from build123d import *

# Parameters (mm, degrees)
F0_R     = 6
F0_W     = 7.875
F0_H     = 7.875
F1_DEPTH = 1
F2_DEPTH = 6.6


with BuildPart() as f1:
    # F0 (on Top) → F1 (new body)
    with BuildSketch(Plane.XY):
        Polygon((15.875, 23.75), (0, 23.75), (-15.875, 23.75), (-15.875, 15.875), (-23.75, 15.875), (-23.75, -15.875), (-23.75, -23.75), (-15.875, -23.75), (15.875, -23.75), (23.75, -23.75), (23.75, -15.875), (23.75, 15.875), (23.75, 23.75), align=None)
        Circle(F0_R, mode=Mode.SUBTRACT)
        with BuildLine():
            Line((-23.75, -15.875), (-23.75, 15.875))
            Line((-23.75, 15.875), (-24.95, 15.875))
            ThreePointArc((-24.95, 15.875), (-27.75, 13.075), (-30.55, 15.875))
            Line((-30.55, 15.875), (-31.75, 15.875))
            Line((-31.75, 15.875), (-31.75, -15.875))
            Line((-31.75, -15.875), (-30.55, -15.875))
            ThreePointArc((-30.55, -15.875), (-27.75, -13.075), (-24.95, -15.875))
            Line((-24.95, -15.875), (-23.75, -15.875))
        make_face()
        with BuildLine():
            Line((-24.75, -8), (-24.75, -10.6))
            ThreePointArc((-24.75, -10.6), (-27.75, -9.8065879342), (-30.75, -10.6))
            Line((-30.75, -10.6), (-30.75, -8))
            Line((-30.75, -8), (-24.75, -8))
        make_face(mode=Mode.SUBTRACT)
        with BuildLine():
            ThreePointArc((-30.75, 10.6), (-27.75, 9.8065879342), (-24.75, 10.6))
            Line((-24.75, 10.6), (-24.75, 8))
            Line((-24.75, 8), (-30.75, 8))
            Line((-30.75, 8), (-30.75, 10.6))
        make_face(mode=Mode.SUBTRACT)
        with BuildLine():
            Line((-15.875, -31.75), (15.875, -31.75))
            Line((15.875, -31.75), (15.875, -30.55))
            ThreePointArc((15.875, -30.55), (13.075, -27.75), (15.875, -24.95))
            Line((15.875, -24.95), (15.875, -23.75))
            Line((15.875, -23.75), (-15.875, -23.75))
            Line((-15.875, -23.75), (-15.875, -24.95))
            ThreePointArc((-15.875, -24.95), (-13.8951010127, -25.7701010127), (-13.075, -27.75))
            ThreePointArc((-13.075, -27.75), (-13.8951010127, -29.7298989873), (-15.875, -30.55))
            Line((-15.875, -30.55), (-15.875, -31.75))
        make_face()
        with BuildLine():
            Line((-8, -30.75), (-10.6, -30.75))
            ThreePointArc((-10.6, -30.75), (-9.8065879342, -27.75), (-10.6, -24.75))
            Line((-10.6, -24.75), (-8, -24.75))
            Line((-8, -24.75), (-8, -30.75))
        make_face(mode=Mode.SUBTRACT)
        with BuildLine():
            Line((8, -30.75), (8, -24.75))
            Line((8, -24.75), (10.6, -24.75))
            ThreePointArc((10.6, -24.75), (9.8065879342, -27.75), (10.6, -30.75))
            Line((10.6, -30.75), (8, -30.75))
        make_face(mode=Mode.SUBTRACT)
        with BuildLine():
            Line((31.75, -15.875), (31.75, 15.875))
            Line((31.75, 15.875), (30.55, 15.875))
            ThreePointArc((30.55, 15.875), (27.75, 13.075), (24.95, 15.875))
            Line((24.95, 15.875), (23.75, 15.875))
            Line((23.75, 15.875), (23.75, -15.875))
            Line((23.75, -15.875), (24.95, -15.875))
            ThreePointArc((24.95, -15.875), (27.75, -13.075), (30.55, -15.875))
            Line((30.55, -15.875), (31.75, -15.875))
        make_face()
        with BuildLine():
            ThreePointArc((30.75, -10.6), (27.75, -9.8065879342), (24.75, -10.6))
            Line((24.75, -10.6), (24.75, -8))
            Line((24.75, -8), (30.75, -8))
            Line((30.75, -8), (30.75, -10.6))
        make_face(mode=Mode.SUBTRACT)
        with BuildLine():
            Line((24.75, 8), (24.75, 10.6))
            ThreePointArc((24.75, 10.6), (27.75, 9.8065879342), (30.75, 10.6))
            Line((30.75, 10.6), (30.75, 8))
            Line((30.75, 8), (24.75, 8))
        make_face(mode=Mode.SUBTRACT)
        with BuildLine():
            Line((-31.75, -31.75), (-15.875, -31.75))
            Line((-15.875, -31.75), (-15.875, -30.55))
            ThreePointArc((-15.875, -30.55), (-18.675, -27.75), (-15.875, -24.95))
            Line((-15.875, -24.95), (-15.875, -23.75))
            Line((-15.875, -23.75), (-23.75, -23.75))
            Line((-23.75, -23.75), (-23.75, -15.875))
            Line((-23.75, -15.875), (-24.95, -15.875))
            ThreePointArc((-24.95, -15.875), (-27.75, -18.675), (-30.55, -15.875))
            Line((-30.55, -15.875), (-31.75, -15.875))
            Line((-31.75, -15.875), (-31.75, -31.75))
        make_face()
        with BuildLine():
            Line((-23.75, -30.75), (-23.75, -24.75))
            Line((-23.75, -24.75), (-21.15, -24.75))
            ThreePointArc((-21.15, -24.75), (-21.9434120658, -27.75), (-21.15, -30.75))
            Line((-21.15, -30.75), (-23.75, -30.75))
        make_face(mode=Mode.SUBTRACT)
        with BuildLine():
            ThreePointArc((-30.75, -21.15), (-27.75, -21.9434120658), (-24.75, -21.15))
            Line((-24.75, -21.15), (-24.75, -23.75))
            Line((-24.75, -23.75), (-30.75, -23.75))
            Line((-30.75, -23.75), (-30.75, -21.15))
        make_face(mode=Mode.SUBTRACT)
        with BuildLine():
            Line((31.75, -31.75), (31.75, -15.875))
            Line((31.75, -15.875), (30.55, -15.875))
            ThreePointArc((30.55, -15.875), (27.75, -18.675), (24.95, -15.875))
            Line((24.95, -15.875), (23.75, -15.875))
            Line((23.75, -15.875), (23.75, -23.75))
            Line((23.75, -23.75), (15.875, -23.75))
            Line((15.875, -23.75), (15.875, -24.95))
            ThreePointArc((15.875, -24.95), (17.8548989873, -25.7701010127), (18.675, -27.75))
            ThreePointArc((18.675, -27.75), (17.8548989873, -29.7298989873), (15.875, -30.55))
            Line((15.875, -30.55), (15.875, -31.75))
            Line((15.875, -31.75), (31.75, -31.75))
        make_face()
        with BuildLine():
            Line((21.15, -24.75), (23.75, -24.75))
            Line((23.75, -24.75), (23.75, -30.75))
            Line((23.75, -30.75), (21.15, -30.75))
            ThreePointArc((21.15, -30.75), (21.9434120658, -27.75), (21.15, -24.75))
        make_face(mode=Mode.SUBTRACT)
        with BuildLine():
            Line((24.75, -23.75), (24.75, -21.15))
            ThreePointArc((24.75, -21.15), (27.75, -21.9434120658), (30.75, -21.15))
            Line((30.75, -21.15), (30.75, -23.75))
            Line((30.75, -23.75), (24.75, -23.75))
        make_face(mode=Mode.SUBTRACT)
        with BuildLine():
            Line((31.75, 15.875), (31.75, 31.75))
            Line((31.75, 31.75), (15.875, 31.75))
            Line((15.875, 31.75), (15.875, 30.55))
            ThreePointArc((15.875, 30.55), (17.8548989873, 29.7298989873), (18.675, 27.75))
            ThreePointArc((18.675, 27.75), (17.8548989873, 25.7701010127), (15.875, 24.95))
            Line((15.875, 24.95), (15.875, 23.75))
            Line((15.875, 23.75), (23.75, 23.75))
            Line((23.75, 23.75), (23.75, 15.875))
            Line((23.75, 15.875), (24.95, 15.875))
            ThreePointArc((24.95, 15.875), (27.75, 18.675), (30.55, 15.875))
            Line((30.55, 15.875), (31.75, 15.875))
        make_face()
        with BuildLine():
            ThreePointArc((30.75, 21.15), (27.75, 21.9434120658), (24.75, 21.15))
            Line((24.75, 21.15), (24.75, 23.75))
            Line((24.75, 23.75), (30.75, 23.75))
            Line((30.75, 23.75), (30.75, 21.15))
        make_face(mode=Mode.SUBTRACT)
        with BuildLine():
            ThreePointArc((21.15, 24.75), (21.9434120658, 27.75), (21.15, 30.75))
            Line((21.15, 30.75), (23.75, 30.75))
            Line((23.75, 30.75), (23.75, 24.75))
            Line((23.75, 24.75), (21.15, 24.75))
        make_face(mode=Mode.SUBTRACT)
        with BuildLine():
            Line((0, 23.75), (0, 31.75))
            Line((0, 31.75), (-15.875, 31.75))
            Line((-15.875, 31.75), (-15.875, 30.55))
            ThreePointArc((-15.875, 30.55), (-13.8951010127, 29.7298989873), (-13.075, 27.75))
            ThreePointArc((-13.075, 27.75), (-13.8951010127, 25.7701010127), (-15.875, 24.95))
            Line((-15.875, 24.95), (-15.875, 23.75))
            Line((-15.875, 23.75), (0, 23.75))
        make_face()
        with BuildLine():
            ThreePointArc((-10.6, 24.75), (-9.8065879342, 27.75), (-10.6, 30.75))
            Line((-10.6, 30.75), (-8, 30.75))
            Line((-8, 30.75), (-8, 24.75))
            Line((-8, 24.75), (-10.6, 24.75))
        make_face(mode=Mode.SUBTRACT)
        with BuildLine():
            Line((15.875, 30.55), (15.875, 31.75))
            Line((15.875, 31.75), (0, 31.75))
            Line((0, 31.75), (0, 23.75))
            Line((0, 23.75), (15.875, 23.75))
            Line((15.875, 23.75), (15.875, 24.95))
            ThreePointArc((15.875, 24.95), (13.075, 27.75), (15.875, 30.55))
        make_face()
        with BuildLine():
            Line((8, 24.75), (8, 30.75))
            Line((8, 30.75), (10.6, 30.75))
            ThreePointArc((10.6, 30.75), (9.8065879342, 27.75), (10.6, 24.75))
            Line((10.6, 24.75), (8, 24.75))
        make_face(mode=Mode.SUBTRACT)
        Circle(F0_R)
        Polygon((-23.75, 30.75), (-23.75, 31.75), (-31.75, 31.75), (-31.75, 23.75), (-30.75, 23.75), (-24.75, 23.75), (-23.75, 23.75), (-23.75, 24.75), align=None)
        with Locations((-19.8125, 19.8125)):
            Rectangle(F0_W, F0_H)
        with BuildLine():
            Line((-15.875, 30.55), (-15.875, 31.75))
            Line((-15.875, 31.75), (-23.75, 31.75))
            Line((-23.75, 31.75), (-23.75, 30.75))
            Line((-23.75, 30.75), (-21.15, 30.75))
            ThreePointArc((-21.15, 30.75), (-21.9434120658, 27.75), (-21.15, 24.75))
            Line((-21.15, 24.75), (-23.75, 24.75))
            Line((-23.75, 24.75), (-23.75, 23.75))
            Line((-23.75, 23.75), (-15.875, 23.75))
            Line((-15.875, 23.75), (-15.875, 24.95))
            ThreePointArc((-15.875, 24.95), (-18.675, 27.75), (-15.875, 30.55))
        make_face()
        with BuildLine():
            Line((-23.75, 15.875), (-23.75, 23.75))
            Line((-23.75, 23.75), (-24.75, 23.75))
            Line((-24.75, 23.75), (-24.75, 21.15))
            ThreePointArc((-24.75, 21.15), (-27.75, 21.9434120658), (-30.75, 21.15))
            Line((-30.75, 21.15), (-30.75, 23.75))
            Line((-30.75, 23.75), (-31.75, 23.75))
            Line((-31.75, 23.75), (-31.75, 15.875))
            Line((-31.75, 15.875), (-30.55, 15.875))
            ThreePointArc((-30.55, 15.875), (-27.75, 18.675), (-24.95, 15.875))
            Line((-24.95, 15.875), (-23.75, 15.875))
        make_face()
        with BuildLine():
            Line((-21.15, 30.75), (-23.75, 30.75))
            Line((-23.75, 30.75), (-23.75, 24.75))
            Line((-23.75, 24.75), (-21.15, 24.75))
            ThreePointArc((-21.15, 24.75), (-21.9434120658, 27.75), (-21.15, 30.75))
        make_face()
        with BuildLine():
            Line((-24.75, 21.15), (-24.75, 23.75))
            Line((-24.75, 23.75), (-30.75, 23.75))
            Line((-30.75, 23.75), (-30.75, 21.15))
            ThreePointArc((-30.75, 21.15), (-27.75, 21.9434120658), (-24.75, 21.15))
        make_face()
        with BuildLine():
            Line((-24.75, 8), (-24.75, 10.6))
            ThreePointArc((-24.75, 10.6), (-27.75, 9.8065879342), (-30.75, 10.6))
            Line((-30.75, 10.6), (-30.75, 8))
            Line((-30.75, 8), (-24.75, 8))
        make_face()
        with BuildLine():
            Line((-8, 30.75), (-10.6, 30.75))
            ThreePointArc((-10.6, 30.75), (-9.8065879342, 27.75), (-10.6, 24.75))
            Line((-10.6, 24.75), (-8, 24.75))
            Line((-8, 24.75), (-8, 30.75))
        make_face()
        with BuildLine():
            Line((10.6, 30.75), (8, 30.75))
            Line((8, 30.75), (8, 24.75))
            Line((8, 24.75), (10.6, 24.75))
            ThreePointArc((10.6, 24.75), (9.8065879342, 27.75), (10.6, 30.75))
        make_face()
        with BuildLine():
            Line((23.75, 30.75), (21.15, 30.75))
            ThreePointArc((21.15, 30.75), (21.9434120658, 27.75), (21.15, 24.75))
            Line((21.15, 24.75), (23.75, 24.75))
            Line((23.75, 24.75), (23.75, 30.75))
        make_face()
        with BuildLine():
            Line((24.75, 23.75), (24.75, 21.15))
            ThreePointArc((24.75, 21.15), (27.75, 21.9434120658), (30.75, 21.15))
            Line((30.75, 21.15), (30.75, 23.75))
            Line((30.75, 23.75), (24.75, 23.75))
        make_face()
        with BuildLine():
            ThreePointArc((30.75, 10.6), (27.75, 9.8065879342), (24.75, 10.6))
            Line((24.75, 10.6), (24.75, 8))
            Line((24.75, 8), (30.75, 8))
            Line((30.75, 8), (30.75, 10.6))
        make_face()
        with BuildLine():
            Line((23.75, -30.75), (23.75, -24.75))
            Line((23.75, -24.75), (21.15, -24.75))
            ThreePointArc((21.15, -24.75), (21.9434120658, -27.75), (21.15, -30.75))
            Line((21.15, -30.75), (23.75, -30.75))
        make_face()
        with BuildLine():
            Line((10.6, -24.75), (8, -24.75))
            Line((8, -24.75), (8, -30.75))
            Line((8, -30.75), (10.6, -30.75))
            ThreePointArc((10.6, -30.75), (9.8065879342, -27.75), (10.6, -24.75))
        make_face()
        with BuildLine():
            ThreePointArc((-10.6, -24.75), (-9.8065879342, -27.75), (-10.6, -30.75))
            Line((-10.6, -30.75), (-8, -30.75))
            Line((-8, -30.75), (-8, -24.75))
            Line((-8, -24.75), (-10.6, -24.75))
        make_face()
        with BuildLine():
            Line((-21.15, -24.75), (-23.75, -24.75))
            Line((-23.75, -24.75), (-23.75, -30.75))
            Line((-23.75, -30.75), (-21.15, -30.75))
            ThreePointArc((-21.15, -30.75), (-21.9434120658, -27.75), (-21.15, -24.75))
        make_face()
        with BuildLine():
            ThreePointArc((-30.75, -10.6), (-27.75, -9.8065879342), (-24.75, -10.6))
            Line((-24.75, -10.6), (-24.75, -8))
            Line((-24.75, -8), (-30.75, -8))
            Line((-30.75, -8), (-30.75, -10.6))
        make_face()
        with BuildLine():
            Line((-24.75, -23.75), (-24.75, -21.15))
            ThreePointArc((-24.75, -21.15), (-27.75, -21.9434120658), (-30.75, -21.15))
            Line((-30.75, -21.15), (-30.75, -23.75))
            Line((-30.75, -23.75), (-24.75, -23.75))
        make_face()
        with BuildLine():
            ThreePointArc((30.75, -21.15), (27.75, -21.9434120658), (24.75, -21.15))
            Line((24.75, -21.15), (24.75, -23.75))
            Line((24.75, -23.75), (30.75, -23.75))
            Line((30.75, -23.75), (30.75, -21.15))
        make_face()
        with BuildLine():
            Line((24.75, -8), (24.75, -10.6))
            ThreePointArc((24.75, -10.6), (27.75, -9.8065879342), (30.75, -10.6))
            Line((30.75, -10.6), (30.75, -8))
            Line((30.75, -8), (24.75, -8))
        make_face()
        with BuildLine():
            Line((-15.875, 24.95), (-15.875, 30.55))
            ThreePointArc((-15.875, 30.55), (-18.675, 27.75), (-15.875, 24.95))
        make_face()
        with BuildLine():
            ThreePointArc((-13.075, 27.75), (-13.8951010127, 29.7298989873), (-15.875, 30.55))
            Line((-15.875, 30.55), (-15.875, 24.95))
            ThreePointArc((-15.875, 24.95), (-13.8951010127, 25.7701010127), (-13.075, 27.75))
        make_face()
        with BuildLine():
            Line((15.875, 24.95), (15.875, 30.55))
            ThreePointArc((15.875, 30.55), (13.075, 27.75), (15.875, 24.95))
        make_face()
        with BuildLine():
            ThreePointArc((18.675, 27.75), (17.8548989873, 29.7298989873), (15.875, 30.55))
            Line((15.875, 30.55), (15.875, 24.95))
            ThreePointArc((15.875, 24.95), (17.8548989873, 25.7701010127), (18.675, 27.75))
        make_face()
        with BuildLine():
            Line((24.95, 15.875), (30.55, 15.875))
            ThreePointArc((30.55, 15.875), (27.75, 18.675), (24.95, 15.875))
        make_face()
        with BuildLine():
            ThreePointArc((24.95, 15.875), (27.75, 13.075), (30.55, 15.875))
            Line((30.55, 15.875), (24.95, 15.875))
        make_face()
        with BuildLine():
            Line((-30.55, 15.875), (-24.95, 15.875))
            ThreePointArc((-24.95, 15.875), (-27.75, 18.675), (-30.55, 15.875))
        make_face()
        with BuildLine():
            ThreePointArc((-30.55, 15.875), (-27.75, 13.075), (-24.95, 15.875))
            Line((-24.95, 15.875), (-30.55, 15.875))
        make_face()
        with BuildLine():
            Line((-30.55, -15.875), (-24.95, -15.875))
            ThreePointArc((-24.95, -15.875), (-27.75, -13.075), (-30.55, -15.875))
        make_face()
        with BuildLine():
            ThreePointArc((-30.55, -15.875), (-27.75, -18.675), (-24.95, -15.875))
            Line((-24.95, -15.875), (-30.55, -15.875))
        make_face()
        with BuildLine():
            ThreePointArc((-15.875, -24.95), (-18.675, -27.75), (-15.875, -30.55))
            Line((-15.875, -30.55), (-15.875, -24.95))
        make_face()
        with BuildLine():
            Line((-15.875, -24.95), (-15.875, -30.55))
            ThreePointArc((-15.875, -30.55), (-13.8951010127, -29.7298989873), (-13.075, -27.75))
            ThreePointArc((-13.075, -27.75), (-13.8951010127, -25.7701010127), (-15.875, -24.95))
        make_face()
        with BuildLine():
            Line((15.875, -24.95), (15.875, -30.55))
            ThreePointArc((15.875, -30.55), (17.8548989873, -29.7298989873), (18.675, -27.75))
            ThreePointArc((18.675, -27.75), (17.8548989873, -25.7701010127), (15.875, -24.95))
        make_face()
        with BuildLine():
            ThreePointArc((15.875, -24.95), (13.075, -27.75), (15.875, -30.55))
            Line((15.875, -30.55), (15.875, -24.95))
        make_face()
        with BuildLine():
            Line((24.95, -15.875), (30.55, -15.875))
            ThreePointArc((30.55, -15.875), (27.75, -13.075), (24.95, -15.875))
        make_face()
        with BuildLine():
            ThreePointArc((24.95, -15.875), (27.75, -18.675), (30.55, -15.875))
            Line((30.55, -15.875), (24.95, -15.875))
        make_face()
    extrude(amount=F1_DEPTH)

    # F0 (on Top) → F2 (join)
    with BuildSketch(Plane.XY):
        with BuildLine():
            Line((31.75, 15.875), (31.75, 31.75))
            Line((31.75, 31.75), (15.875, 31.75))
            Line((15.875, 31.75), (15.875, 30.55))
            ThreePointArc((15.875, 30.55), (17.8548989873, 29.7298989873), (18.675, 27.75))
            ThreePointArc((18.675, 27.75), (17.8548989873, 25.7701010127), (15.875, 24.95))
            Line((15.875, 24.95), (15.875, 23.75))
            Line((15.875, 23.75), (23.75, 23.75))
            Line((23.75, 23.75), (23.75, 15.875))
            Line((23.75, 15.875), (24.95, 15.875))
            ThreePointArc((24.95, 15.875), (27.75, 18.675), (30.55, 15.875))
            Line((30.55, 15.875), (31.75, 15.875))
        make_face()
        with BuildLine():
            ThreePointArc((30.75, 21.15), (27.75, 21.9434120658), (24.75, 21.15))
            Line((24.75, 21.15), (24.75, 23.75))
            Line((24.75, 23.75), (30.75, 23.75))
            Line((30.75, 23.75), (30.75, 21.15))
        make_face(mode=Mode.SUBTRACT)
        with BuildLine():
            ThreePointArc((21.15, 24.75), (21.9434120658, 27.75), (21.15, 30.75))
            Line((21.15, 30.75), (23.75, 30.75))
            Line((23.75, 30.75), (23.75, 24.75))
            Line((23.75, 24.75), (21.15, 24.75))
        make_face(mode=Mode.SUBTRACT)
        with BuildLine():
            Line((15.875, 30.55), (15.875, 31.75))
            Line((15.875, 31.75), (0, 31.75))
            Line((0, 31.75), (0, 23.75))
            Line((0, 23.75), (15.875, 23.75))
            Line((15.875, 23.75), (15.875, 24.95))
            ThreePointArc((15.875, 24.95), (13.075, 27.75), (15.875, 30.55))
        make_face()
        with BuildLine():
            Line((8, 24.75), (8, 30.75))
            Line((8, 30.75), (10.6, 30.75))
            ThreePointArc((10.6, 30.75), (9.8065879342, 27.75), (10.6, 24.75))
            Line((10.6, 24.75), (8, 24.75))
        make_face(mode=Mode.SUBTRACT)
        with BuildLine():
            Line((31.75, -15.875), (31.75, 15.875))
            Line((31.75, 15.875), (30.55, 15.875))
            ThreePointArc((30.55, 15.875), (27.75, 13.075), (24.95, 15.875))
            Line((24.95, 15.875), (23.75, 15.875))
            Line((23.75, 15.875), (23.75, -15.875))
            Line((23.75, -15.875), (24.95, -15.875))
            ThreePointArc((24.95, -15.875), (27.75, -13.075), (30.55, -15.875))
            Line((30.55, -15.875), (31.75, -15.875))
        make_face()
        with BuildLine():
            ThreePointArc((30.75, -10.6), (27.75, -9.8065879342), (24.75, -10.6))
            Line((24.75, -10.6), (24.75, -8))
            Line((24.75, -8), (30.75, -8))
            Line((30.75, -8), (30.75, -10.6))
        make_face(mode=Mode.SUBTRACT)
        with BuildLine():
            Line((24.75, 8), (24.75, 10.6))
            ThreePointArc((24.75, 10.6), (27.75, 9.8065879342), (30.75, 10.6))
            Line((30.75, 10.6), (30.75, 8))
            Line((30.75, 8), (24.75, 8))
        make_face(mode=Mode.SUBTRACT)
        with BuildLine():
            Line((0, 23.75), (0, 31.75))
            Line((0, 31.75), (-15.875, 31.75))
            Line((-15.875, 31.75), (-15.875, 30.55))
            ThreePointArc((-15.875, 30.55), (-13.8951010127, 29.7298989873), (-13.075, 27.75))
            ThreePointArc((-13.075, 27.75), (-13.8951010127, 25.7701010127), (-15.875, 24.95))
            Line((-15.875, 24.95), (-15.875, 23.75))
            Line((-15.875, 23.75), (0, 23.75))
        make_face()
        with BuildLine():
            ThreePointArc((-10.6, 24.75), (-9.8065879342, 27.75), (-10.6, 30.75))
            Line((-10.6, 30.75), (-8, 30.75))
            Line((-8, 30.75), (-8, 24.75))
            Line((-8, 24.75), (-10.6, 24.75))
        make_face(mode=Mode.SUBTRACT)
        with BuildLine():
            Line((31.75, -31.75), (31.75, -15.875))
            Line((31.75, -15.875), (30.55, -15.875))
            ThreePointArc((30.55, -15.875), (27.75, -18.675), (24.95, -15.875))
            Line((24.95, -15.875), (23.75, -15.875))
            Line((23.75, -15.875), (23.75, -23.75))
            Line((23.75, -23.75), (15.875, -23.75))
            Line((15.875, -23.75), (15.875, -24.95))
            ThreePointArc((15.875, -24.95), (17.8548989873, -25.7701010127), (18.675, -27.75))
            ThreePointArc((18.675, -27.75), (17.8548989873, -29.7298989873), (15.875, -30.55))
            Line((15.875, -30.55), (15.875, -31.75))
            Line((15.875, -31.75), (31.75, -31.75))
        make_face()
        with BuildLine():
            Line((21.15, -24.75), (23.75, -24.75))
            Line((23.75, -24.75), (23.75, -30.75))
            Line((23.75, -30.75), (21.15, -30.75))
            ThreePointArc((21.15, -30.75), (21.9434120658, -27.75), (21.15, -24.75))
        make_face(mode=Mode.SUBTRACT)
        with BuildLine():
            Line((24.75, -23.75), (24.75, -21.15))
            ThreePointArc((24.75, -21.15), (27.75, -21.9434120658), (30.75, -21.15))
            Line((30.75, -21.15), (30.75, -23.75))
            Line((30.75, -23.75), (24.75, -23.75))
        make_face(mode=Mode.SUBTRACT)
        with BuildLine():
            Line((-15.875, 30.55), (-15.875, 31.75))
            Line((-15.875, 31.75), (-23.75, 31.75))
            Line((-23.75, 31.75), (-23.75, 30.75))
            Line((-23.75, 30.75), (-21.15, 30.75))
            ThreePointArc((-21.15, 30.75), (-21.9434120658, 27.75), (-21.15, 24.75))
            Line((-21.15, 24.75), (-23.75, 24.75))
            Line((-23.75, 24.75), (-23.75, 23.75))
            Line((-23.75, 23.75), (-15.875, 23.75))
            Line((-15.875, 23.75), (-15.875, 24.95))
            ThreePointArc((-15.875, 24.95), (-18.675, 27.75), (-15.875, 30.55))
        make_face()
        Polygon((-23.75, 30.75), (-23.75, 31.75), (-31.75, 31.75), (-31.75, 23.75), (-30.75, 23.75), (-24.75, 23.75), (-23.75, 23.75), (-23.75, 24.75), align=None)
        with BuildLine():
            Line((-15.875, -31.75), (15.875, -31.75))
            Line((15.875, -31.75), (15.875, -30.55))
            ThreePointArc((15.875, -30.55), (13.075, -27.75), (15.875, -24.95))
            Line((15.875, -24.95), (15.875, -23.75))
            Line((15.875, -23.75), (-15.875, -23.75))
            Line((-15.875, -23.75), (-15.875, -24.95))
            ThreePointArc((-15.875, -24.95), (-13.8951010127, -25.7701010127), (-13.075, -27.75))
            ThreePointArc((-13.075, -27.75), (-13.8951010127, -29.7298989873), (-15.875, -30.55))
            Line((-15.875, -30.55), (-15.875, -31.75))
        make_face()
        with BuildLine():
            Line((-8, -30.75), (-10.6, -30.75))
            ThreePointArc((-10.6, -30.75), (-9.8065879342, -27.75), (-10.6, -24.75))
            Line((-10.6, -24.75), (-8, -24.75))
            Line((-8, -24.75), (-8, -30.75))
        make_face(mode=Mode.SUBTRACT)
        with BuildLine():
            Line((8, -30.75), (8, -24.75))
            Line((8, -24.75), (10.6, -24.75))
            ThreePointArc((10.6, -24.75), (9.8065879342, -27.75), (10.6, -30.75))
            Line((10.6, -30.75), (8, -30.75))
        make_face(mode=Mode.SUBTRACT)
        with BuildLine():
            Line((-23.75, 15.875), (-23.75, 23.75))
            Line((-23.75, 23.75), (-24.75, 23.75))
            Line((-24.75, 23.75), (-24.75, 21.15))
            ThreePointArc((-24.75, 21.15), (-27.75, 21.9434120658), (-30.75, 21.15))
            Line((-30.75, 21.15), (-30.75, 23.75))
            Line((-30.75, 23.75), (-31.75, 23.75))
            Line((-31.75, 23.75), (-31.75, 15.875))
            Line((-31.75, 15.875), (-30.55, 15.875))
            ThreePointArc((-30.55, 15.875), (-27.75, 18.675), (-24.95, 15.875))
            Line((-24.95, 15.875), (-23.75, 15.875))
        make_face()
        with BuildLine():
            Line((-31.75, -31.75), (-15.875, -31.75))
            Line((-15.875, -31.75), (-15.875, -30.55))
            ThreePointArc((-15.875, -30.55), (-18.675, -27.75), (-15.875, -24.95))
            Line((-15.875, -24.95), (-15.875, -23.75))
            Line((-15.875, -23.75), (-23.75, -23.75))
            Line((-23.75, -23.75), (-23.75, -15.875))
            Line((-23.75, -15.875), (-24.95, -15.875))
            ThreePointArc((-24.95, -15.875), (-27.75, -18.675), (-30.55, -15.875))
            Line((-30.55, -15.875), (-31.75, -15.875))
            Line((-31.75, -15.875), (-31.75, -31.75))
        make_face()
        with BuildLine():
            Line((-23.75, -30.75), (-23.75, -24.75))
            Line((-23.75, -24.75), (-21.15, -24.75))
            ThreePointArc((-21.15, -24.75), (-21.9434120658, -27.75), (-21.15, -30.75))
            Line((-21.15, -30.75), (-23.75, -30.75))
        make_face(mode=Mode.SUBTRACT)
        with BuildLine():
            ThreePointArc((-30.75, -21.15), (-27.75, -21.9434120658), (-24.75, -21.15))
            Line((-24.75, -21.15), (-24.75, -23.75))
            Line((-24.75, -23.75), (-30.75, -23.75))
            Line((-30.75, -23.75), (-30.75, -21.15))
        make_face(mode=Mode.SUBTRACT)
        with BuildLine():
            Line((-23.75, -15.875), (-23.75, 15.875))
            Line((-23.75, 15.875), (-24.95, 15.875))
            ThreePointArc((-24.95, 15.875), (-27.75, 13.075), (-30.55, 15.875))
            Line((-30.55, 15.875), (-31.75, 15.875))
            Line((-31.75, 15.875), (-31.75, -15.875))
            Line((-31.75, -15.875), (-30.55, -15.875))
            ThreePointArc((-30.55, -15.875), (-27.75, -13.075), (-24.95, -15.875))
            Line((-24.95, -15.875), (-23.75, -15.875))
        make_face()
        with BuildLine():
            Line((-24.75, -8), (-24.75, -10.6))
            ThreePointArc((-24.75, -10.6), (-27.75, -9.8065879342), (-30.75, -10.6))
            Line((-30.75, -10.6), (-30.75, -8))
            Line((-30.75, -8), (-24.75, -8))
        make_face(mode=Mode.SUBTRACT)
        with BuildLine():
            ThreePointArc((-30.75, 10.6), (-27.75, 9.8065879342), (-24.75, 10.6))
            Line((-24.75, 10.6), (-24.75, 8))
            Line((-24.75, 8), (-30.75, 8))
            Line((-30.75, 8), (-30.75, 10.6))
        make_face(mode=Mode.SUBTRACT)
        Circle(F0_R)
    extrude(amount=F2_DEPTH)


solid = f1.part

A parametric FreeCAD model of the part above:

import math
import FreeCAD as App
import Part
import Sketcher

V = App.Vector
Q = App.Units.Quantity

doc = App.newDocument("Part")
params = doc.addObject("Spreadsheet::Sheet", "Params")
for row, (alias, value) in enumerate([
    ("sketch1_width", "63.5 mm"),
    ("pad1_length", "1 mm"),
    ("sketch2_diameter", "12 mm"),
    ("sketch2_diameter2", "5.6 mm"),
    ("sketch2_width", "6 mm"),
    ("sketch2_width2", "63.5 mm"),
    ("sketch2_width3", "2.6 mm"),
    ("pad2_length", "6.6 mm"),
], start=1):
    params.set(f"A{row}", alias)
    params.set(f"B{row}", "=" + value)
    params.setAlias(f"B{row}", alias)

body = doc.addObject("PartDesign::Body", "Body")

# Sketch on XY plane
sketch1 = body.newObject("Sketcher::SketchObject", "Sketch")
sketch1.AttachmentSupport = (doc.getObject("XY_Plane"), [""])
sketch1.MapMode = "FlatFace"
sketch1.addGeometry([
    Part.LineSegment(V(-32, -32, 0), V(32, -32, 0)),
    Part.LineSegment(V(32, -32, 0), V(32, 32, 0)),
    Part.LineSegment(V(32, 32, 0), V(-32, 32, 0)),
    Part.LineSegment(V(-32, 32, 0), V(-32, -32, 0)),
], False)
sketch1.addConstraint([
    Sketcher.Constraint("Coincident", 0, 2, 1, 1),
    Sketcher.Constraint("Coincident", 1, 2, 2, 1),
    Sketcher.Constraint("Coincident", 2, 2, 3, 1),
    Sketcher.Constraint("Coincident", 3, 2, 0, 1),
    Sketcher.Constraint("Horizontal", 0),
    Sketcher.Constraint("Vertical", 1),
    Sketcher.Constraint("Horizontal", 2),
    Sketcher.Constraint("Vertical", 3),
    Sketcher.Constraint("Symmetric", 0, 2, 2, 2, -1, 1),
    Sketcher.Constraint("Equal", 2, 1),
    Sketcher.Constraint("DistanceX", 0, 1, 0, 2, Q("63.5 mm")),
])
sketch1.setExpression("Constraints[10]", "Params.sketch1_width")
pad1 = body.newObject("PartDesign::Pad", "Pad")
pad1.Profile = sketch1
pad1.setExpression("Length", "Params.pad1_length")

# Sketch on XY plane
sketch2 = body.newObject("Sketcher::SketchObject", "Sketch001")
sketch2.AttachmentSupport = (doc.getObject("XY_Plane"), [""])
sketch2.MapMode = "FlatFace"
sketch2.addGeometry([
    Part.LineSegment(V(31.8, 31.8, 0), V(-31.8, 31.8, 0)),  # 0
    Part.LineSegment(V(-31.8, 31.8, 0), V(-31.8, -31.8, 0)),  # 1
    Part.LineSegment(V(-31.8, -31.8, 0), V(31.8, -31.8, 0)),  # 2
    Part.LineSegment(V(31.8, -31.8, 0), V(31.8, 31.8, 0)),  # 3
    Part.LineSegment(V(-21.1, -30.8, 0), V(-23.8, -30.8, 0)),  # 4
    Part.LineSegment(V(-23.8, -30.8, 0), V(-23.8, -24.8, 0)),  # 5
    Part.LineSegment(V(-23.8, -24.8, 0), V(-21.1, -24.8, 0)),  # 6
    Part.ArcOfCircle(Part.Circle(V(-15.9, -27.8, 0), V(0, 0, 1), 6.1), math.radians(150), math.radians(210)),  # 7
    Part.ArcOfCircle(Part.Circle(V(-15.9, -27.8, 0), V(0, 0, 1), 2.8), math.radians(0), math.radians(90)),  # 8
    Part.ArcOfCircle(Part.Circle(V(-15.9, -27.8, 0), V(0, 0, 1), 2.8), math.radians(-90), math.radians(0)),  # 9
    Part.ArcOfCircle(Part.Circle(V(-15.9, -27.8, 0), V(0, 0, 1), 2.8), math.radians(90), math.radians(270)),  # 10
    Part.LineSegment(V(-30.8, -23.8, 0), V(-30.8, -21.1, 0)),  # 11
    Part.ArcOfCircle(Part.Circle(V(-27.8, -15.9, 0), V(0, 0, 1), 6.1), math.radians(-120), math.radians(-60)),  # 12
    Part.LineSegment(V(-24.8, -21.1, 0), V(-24.8, -23.8, 0)),  # 13
    Part.LineSegment(V(-24.8, -23.8, 0), V(-30.8, -23.8, 0)),  # 14
    Part.Circle(V(-27.8, -15.9, 0), V(0, 0, 1), 2.8),  # 15
    Part.LineSegment(V(-8, -24.8, 0), V(-8, -30.8, 0)),  # 16
    Part.LineSegment(V(-8, -30.8, 0), V(-10.6, -30.8, 0)),  # 17
    Part.ArcOfCircle(Part.Circle(V(-15.9, -27.8, 0), V(0, 0, 1), 6.1), math.radians(-30), math.radians(30)),  # 18
    Part.LineSegment(V(-10.6, -24.8, 0), V(-8, -24.8, 0)),  # 19
    Part.LineSegment(V(-30.8, -8, 0), V(-24.8, -8, 0)),  # 20
    Part.LineSegment(V(-24.8, -8, 0), V(-24.8, -10.6, 0)),  # 21
    Part.ArcOfCircle(Part.Circle(V(-27.8, -15.9, 0), V(0, 0, 1), 6.1), math.radians(60), math.radians(120)),  # 22
    Part.LineSegment(V(-30.8, -10.6, 0), V(-30.8, -8, 0)),  # 23
    Part.LineSegment(V(10.6, -30.8, 0), V(8, -30.8, 0)),  # 24
    Part.LineSegment(V(8, -30.8, 0), V(8, -24.8, 0)),  # 25
    Part.LineSegment(V(8, -24.8, 0), V(10.6, -24.8, 0)),  # 26
    Part.ArcOfCircle(Part.Circle(V(15.9, -27.8, 0), V(0, 0, 1), 6.1), math.radians(150), math.radians(210)),  # 27
    Part.ArcOfCircle(Part.Circle(V(15.9, -27.8, 0), V(0, 0, 1), 2.8), math.radians(0), math.radians(90)),  # 28
    Part.ArcOfCircle(Part.Circle(V(15.9, -27.8, 0), V(0, 0, 1), 2.8), math.radians(-90), math.radians(0)),  # 29
    Part.ArcOfCircle(Part.Circle(V(15.9, -27.8, 0), V(0, 0, 1), 2.8), math.radians(90), math.radians(270)),  # 30
    Part.ArcOfCircle(Part.Circle(V(15.9, -27.8, 0), V(0, 0, 1), 6.1), math.radians(-30), math.radians(30)),  # 31
    Part.LineSegment(V(21.1, -24.8, 0), V(23.8, -24.8, 0)),  # 32
    Part.LineSegment(V(23.8, -24.8, 0), V(23.8, -30.8, 0)),  # 33
    Part.LineSegment(V(23.8, -30.8, 0), V(21.1, -30.8, 0)),  # 34
    Part.LineSegment(V(30.8, -23.8, 0), V(24.8, -23.8, 0)),  # 35
    Part.LineSegment(V(24.8, -23.8, 0), V(24.8, -21.1, 0)),  # 36
    Part.ArcOfCircle(Part.Circle(V(27.8, -15.9, 0), V(0, 0, 1), 6.1), math.radians(-120), math.radians(-60)),  # 37
    Part.LineSegment(V(30.8, -21.1, 0), V(30.8, -23.8, 0)),  # 38
    Part.Circle(V(27.8, -15.9, 0), V(0, 0, 1), 2.8),  # 39
    Part.LineSegment(V(30.8, -8, 0), V(30.8, -10.6, 0)),  # 40
    Part.ArcOfCircle(Part.Circle(V(27.8, -15.9, 0), V(0, 0, 1), 6.1), math.radians(60), math.radians(120)),  # 41
    Part.LineSegment(V(24.8, -10.6, 0), V(24.8, -8, 0)),  # 42
    Part.LineSegment(V(24.8, -8, 0), V(30.8, -8, 0)),  # 43
    Part.LineSegment(V(-30.8, 8, 0), V(-30.8, 10.6, 0)),  # 44
    Part.ArcOfCircle(Part.Circle(V(-27.8, 15.9, 0), V(0, 0, 1), 6.1), math.radians(-120), math.radians(-60)),  # 45
    Part.LineSegment(V(-24.8, 10.6, 0), V(-24.8, 8, 0)),  # 46
    Part.LineSegment(V(-24.8, 8, 0), V(-30.8, 8, 0)),  # 47
    Part.Circle(V(-27.8, 15.9, 0), V(0, 0, 1), 2.8),  # 48
    Part.LineSegment(V(-30.8, 23.8, 0), V(-24.8, 23.8, 0)),  # 49
    Part.LineSegment(V(-24.8, 23.8, 0), V(-24.8, 21.1, 0)),  # 50
    Part.ArcOfCircle(Part.Circle(V(-27.8, 15.9, 0), V(0, 0, 1), 6.1), math.radians(60), math.radians(120)),  # 51
    Part.LineSegment(V(-30.8, 21.1, 0), V(-30.8, 23.8, 0)),  # 52
    Part.LineSegment(V(-23.8, 30.8, 0), V(-21.1, 30.8, 0)),  # 53
    Part.ArcOfCircle(Part.Circle(V(-15.9, 27.8, 0), V(0, 0, 1), 6.1), math.radians(150), math.radians(210)),  # 54
    Part.LineSegment(V(-21.1, 24.8, 0), V(-23.8, 24.8, 0)),  # 55
    Part.LineSegment(V(-23.8, 24.8, 0), V(-23.8, 30.8, 0)),  # 56
    Part.ArcOfCircle(Part.Circle(V(-15.9, 27.8, 0), V(0, 0, 1), 2.8), math.radians(0), math.radians(90)),  # 57
    Part.ArcOfCircle(Part.Circle(V(-15.9, 27.8, 0), V(0, 0, 1), 2.8), math.radians(-90), math.radians(0)),  # 58
    Part.ArcOfCircle(Part.Circle(V(-15.9, 27.8, 0), V(0, 0, 1), 2.8), math.radians(90), math.radians(270)),  # 59
    Part.LineSegment(V(-8, 24.8, 0), V(-10.6, 24.8, 0)),  # 60
    Part.ArcOfCircle(Part.Circle(V(-15.9, 27.8, 0), V(0, 0, 1), 6.1), math.radians(-30), math.radians(30)),  # 61
    Part.LineSegment(V(-10.6, 30.8, 0), V(-8, 30.8, 0)),  # 62
    Part.LineSegment(V(-8, 30.8, 0), V(-8, 24.8, 0)),  # 63
    Part.LineSegment(V(-23.8, 23.8, 0), V(23.8, 23.8, 0)),  # 64
    Part.LineSegment(V(23.8, 23.8, 0), V(23.8, -23.8, 0)),  # 65
    Part.LineSegment(V(23.8, -23.8, 0), V(-23.8, -23.8, 0)),  # 66
    Part.LineSegment(V(-23.8, -23.8, 0), V(-23.8, 23.8, 0)),  # 67
    Part.LineSegment(V(30.8, 8, 0), V(24.8, 8, 0)),  # 68
    Part.LineSegment(V(24.8, 8, 0), V(24.8, 10.6, 0)),  # 69
    Part.ArcOfCircle(Part.Circle(V(27.8, 15.9, 0), V(0, 0, 1), 6.1), math.radians(-120), math.radians(-60)),  # 70
    Part.LineSegment(V(30.8, 10.6, 0), V(30.8, 8, 0)),  # 71
    Part.LineSegment(V(10.6, 24.8, 0), V(8, 24.8, 0)),  # 72
    Part.LineSegment(V(8, 24.8, 0), V(8, 30.8, 0)),  # 73
    Part.LineSegment(V(8, 30.8, 0), V(10.6, 30.8, 0)),  # 74
    Part.ArcOfCircle(Part.Circle(V(15.9, 27.8, 0), V(0, 0, 1), 6.1), math.radians(150), math.radians(210)),  # 75
    Part.Circle(V(27.8, 15.9, 0), V(0, 0, 1), 2.8),  # 76
    Part.LineSegment(V(30.8, 23.8, 0), V(30.8, 21.1, 0)),  # 77
    Part.ArcOfCircle(Part.Circle(V(27.8, 15.9, 0), V(0, 0, 1), 6.1), math.radians(60), math.radians(120)),  # 78
    Part.LineSegment(V(24.8, 21.1, 0), V(24.8, 23.8, 0)),  # 79
    Part.LineSegment(V(24.8, 23.8, 0), V(30.8, 23.8, 0)),  # 80
    Part.ArcOfCircle(Part.Circle(V(15.9, 27.8, 0), V(0, 0, 1), 2.8), math.radians(0), math.radians(90)),  # 81
    Part.ArcOfCircle(Part.Circle(V(15.9, 27.8, 0), V(0, 0, 1), 2.8), math.radians(-90), math.radians(0)),  # 82
    Part.ArcOfCircle(Part.Circle(V(15.9, 27.8, 0), V(0, 0, 1), 2.8), math.radians(90), math.radians(270)),  # 83
    Part.LineSegment(V(23.8, 24.8, 0), V(21.1, 24.8, 0)),  # 84
    Part.ArcOfCircle(Part.Circle(V(15.9, 27.8, 0), V(0, 0, 1), 6.1), math.radians(-30), math.radians(30)),  # 85
    Part.LineSegment(V(21.1, 30.8, 0), V(23.8, 30.8, 0)),  # 86
    Part.LineSegment(V(23.8, 30.8, 0), V(23.8, 24.8, 0)),  # 87
    Part.Circle(V(0, 0, 0), V(0, 0, 1), 6),  # 88
], False)
sketch2.addConstraint([
    Sketcher.Constraint("Coincident", 0, 2, 1, 1),
    Sketcher.Constraint("Coincident", 1, 2, 2, 1),
    Sketcher.Constraint("Coincident", 2, 2, 3, 1),
    Sketcher.Constraint("Coincident", 3, 2, 0, 1),
    Sketcher.Constraint("Coincident", 4, 2, 5, 1),
    Sketcher.Constraint("Coincident", 5, 2, 6, 1),
    Sketcher.Constraint("Coincident", 6, 2, 7, 1),
    Sketcher.Constraint("Coincident", 7, 2, 4, 1),
    Sketcher.Constraint("Tangent", 8, 1, 9, 2),
    Sketcher.Constraint("Tangent", 9, 1, 10, 2),
    Sketcher.Constraint("Tangent", 10, 1, 8, 2),
    Sketcher.Constraint("Coincident", 11, 2, 12, 1),
    Sketcher.Constraint("Coincident", 12, 2, 13, 1),
    Sketcher.Constraint("Coincident", 13, 2, 14, 1),
    Sketcher.Constraint("Coincident", 14, 2, 11, 1),
    Sketcher.Constraint("Coincident", 16, 2, 17, 1),
    Sketcher.Constraint("Coincident", 17, 2, 18, 1),
    Sketcher.Constraint("Coincident", 18, 2, 19, 1),
    Sketcher.Constraint("Coincident", 19, 2, 16, 1),
    Sketcher.Constraint("Coincident", 20, 2, 21, 1),
    Sketcher.Constraint("Coincident", 21, 2, 22, 1),
    Sketcher.Constraint("Coincident", 22, 2, 23, 1),
    Sketcher.Constraint("Coincident", 23, 2, 20, 1),
    Sketcher.Constraint("Coincident", 24, 2, 25, 1),
    Sketcher.Constraint("Coincident", 25, 2, 26, 1),
    Sketcher.Constraint("Coincident", 26, 2, 27, 1),
    Sketcher.Constraint("Coincident", 27, 2, 24, 1),
    Sketcher.Constraint("Tangent", 28, 1, 29, 2),
    Sketcher.Constraint("Tangent", 29, 1, 30, 2),
    Sketcher.Constraint("Tangent", 30, 1, 28, 2),
    Sketcher.Constraint("Coincident", 31, 2, 32, 1),
    Sketcher.Constraint("Coincident", 32, 2, 33, 1),
    Sketcher.Constraint("Coincident", 33, 2, 34, 1),
    Sketcher.Constraint("Coincident", 34, 2, 31, 1),
    Sketcher.Constraint("Coincident", 35, 2, 36, 1),
    Sketcher.Constraint("Coincident", 36, 2, 37, 1),
    Sketcher.Constraint("Coincident", 37, 2, 38, 1),
    Sketcher.Constraint("Coincident", 38, 2, 35, 1),
    Sketcher.Constraint("Coincident", 40, 2, 41, 1),
    Sketcher.Constraint("Coincident", 41, 2, 42, 1),
    Sketcher.Constraint("Coincident", 42, 2, 43, 1),
    Sketcher.Constraint("Coincident", 43, 2, 40, 1),
    Sketcher.Constraint("Coincident", 44, 2, 45, 1),
    Sketcher.Constraint("Coincident", 45, 2, 46, 1),
    Sketcher.Constraint("Coincident", 46, 2, 47, 1),
    Sketcher.Constraint("Coincident", 47, 2, 44, 1),
    Sketcher.Constraint("Coincident", 49, 2, 50, 1),
    Sketcher.Constraint("Coincident", 50, 2, 51, 1),
    Sketcher.Constraint("Coincident", 51, 2, 52, 1),
    Sketcher.Constraint("Coincident", 52, 2, 49, 1),
    Sketcher.Constraint("Coincident", 53, 2, 54, 1),
    Sketcher.Constraint("Coincident", 54, 2, 55, 1),
    Sketcher.Constraint("Coincident", 55, 2, 56, 1),
    Sketcher.Constraint("Coincident", 56, 2, 53, 1),
    Sketcher.Constraint("Tangent", 57, 1, 58, 2),
    Sketcher.Constraint("Tangent", 58, 1, 59, 2),
    Sketcher.Constraint("Tangent", 59, 1, 57, 2),
    Sketcher.Constraint("Coincident", 60, 2, 61, 1),
    Sketcher.Constraint("Coincident", 61, 2, 62, 1),
    Sketcher.Constraint("Coincident", 62, 2, 63, 1),
    Sketcher.Constraint("Coincident", 63, 2, 60, 1),
    Sketcher.Constraint("Coincident", 64, 2, 65, 1),
    Sketcher.Constraint("Coincident", 65, 2, 66, 1),
    Sketcher.Constraint("Coincident", 66, 2, 67, 1),
    Sketcher.Constraint("Coincident", 67, 2, 64, 1),
    Sketcher.Constraint("Coincident", 68, 2, 69, 1),
    Sketcher.Constraint("Coincident", 69, 2, 70, 1),
    Sketcher.Constraint("Coincident", 70, 2, 71, 1),
    Sketcher.Constraint("Coincident", 71, 2, 68, 1),
    Sketcher.Constraint("Coincident", 72, 2, 73, 1),
    Sketcher.Constraint("Coincident", 73, 2, 74, 1),
    Sketcher.Constraint("Coincident", 74, 2, 75, 1),
    Sketcher.Constraint("Coincident", 75, 2, 72, 1),
    Sketcher.Constraint("Coincident", 77, 2, 78, 1),
    Sketcher.Constraint("Coincident", 78, 2, 79, 1),
    Sketcher.Constraint("Coincident", 79, 2, 80, 1),
    Sketcher.Constraint("Coincident", 80, 2, 77, 1),
    Sketcher.Constraint("Tangent", 81, 1, 82, 2),
    Sketcher.Constraint("Tangent", 82, 1, 83, 2),
    Sketcher.Constraint("Tangent", 83, 1, 81, 2),
    Sketcher.Constraint("Coincident", 84, 2, 85, 1),
    Sketcher.Constraint("Coincident", 85, 2, 86, 1),
    Sketcher.Constraint("Coincident", 86, 2, 87, 1),
    Sketcher.Constraint("Coincident", 87, 2, 84, 1),
    Sketcher.Constraint("Horizontal", 0),
    Sketcher.Constraint("Vertical", 1),
    Sketcher.Constraint("Horizontal", 2),
    Sketcher.Constraint("Vertical", 3),
    Sketcher.Constraint("Horizontal", 4),
    Sketcher.Constraint("Vertical", 5),
    Sketcher.Constraint("Horizontal", 6),
    Sketcher.Constraint("Vertical", 11),
    Sketcher.Constraint("Vertical", 13),
    Sketcher.Constraint("Horizontal", 14),
    Sketcher.Constraint("Vertical", 16),
    Sketcher.Constraint("Horizontal", 17),
    Sketcher.Constraint("Horizontal", 19),
    Sketcher.Constraint("Horizontal", 20),
    Sketcher.Constraint("Vertical", 21),
    Sketcher.Constraint("Vertical", 23),
    Sketcher.Constraint("Horizontal", 24),
    Sketcher.Constraint("Vertical", 25),
    Sketcher.Constraint("Horizontal", 26),
    Sketcher.Constraint("Horizontal", 32),
    Sketcher.Constraint("Vertical", 33),
    Sketcher.Constraint("Horizontal", 34),
    Sketcher.Constraint("Horizontal", 35),
    Sketcher.Constraint("Vertical", 36),
    Sketcher.Constraint("Vertical", 38),
    Sketcher.Constraint("Vertical", 40),
    Sketcher.Constraint("Vertical", 42),
    Sketcher.Constraint("Horizontal", 43),
    Sketcher.Constraint("Vertical", 44),
    Sketcher.Constraint("Vertical", 46),
    Sketcher.Constraint("Horizontal", 47),
    Sketcher.Constraint("Horizontal", 49),
    Sketcher.Constraint("Vertical", 50),
    Sketcher.Constraint("Vertical", 52),
    Sketcher.Constraint("Horizontal", 53),
    Sketcher.Constraint("Horizontal", 55),
    Sketcher.Constraint("Vertical", 56),
    Sketcher.Constraint("Horizontal", 60),
    Sketcher.Constraint("Horizontal", 62),
    Sketcher.Constraint("Vertical", 63),
    Sketcher.Constraint("Horizontal", 64),
    Sketcher.Constraint("Vertical", 65),
    Sketcher.Constraint("Horizontal", 66),
    Sketcher.Constraint("Vertical", 67),
    Sketcher.Constraint("Horizontal", 68),
    Sketcher.Constraint("Vertical", 69),
    Sketcher.Constraint("Vertical", 71),
    Sketcher.Constraint("Horizontal", 72),
    Sketcher.Constraint("Vertical", 73),
    Sketcher.Constraint("Horizontal", 74),
    Sketcher.Constraint("Vertical", 77),
    Sketcher.Constraint("Vertical", 79),
    Sketcher.Constraint("Horizontal", 80),
    Sketcher.Constraint("Horizontal", 84),
    Sketcher.Constraint("Horizontal", 86),
    Sketcher.Constraint("Vertical", 87),
    Sketcher.Constraint("Coincident", 88, 3, -1, 1),
    Sketcher.Constraint("Coincident", 8, 3, 7, 3),
    Sketcher.Constraint("Coincident", 15, 3, 12, 3),
    Sketcher.Constraint("Coincident", 18, 3, 7, 3),
    Sketcher.Constraint("Coincident", 22, 3, 12, 3),
    Sketcher.Constraint("Coincident", 28, 3, 27, 3),
    Sketcher.Constraint("Coincident", 31, 3, 27, 3),
    Sketcher.Constraint("Coincident", 39, 3, 37, 3),
    Sketcher.Constraint("Coincident", 41, 3, 37, 3),
    Sketcher.Constraint("Coincident", 48, 3, 45, 3),
    Sketcher.Constraint("Coincident", 51, 3, 45, 3),
    Sketcher.Constraint("Coincident", 57, 3, 54, 3),
    Sketcher.Constraint("Coincident", 61, 3, 54, 3),
    Sketcher.Constraint("Coincident", 76, 3, 70, 3),
    Sketcher.Constraint("Coincident", 78, 3, 70, 3),
    Sketcher.Constraint("Coincident", 81, 3, 75, 3),
    Sketcher.Constraint("Coincident", 85, 3, 75, 3),
    Sketcher.Constraint("Equal", 7, 12),
    Sketcher.Constraint("Equal", 10, 15),
    Sketcher.Constraint("Equal", 12, 18),
    Sketcher.Constraint("Equal", 18, 22),
    Sketcher.Constraint("Equal", 22, 27),
    Sketcher.Constraint("Equal", 15, 28),
    Sketcher.Constraint("Equal", 27, 31),
    Sketcher.Constraint("Equal", 31, 37),
    Sketcher.Constraint("Equal", 30, 39),
    Sketcher.Constraint("Equal", 37, 41),
    Sketcher.Constraint("Equal", 41, 45),
    Sketcher.Constraint("Equal", 39, 48),
    Sketcher.Constraint("Equal", 45, 51),
    Sketcher.Constraint("Equal", 51, 54),
    Sketcher.Constraint("Equal", 48, 57),
    Sketcher.Constraint("Equal", 54, 61),
    Sketcher.Constraint("Equal", 61, 70),
    Sketcher.Constraint("Equal", 70, 75),
    Sketcher.Constraint("Equal", 59, 76),
    Sketcher.Constraint("Equal", 75, 78),
    Sketcher.Constraint("Equal", 76, 81),
    Sketcher.Constraint("Equal", 78, 85),
    Sketcher.Constraint("Symmetric", 37, 3, 45, 3, -1, 1),
    Sketcher.Constraint("Symmetric", 27, 3, 54, 3, -1, 1),
    Sketcher.Constraint("Symmetric", 12, 3, 70, 3, -1, 1),
    Sketcher.Constraint("Symmetric", 7, 3, 75, 3, -1, 1),
    Sketcher.Constraint("Symmetric", 0, 2, 2, 2, -1, 1),
    Sketcher.Constraint("Symmetric", 42, 2, 46, 2, -1, 1),
    Sketcher.Constraint("Symmetric", 35, 2, 49, 2, -1, 1),
    Sketcher.Constraint("Symmetric", 32, 2, 55, 2, -1, 1),
    Sketcher.Constraint("Symmetric", 24, 2, 62, 2, -1, 1),
    Sketcher.Constraint("Symmetric", 64, 2, 66, 2, -1, 1),
    Sketcher.Constraint("Symmetric", 20, 2, 68, 2, -1, 1),
    Sketcher.Constraint("Symmetric", 19, 2, 72, 2, -1, 1),
    Sketcher.Constraint("Symmetric", 13, 2, 79, 2, -1, 1),
    Sketcher.Constraint("Symmetric", 4, 2, 86, 2, -1, 1),
    Sketcher.Constraint("Symmetric", 7, 3, 27, 3, -2),
    Sketcher.Constraint("Symmetric", 12, 3, 37, 3, -2),
    Sketcher.Constraint("Symmetric", 16, 2, 24, 2, -2),
    Sketcher.Constraint("Symmetric", 5, 2, 32, 2, -2),
    Sketcher.Constraint("Symmetric", 13, 2, 35, 2, -2),
    Sketcher.Constraint("Symmetric", 20, 2, 42, 2, -2),
    Sketcher.Constraint("Horizontal", 31, 3, 8, 1),
    Sketcher.Constraint("Horizontal", 11, 2, 12, 2),
    Sketcher.Constraint("Horizontal", 7, 2, 16, 2),
    Sketcher.Constraint("Horizontal", 6, 2, 18, 2),
    Sketcher.Constraint("Horizontal", 21, 2, 22, 2),
    Sketcher.Constraint("Horizontal", 19, 2, 25, 2),
    Sketcher.Constraint("Horizontal", 8, 1, 28, 1),
    Sketcher.Constraint("Horizontal", 27, 2, 33, 2),
    Sketcher.Constraint("Horizontal", 36, 2, 37, 2),
    Sketcher.Constraint("Horizontal", 22, 2, 40, 2),
    Sketcher.Constraint("Horizontal", 44, 2, 45, 2),
    Sketcher.Constraint("Horizontal", 50, 2, 51, 2),
    Sketcher.Constraint("Horizontal", 85, 3, 57, 1),
    Sketcher.Constraint("Horizontal", 55, 2, 60, 2),
    Sketcher.Constraint("Horizontal", 56, 2, 61, 2),
    Sketcher.Constraint("Horizontal", 52, 2, 64, 2),
    Sketcher.Constraint("Horizontal", 69, 2, 70, 2),
    Sketcher.Constraint("Horizontal", 62, 2, 73, 2),
    Sketcher.Constraint("Horizontal", 51, 2, 77, 2),
    Sketcher.Constraint("Horizontal", 57, 1, 81, 1),
    Sketcher.Constraint("Horizontal", 75, 2, 84, 2),
    Sketcher.Constraint("Vertical", 6, 2, 7, 2),
    Sketcher.Constraint("Vertical", 61, 3, 9, 1),
    Sketcher.Constraint("Vertical", 9, 1, 10, 1),
    Sketcher.Constraint("Vertical", 13, 2, 20, 2),
    Sketcher.Constraint("Vertical", 85, 3, 29, 1),
    Sketcher.Constraint("Vertical", 29, 1, 30, 1),
    Sketcher.Constraint("Vertical", 10, 1, 58, 1),
    Sketcher.Constraint("Vertical", 58, 1, 59, 1),
    Sketcher.Constraint("Vertical", 33, 2, 64, 2),
    Sketcher.Constraint("Vertical", 30, 1, 82, 1),
    Sketcher.Constraint("Vertical", 82, 1, 83, 1),
    Sketcher.Constraint("Equal", 6, 17),
    Sketcher.Constraint("Equal", 2, 1),
    Sketcher.Constraint("Equal", 80, 5),
    Sketcher.Constraint("Equal", 86, 11),
    Sketcher.Constraint("Equal", 13, 21),
    Sketcher.Constraint("Equal", 66, 65),
    Sketcher.Constraint("Diameter", 88, Q("12 mm")),
    Sketcher.Constraint("Diameter", 15, Q("5.6 mm")),
    Sketcher.Constraint("DistanceX", 14, 2, 14, 1, Q("6 mm")),
    Sketcher.Constraint("DistanceX", 0, 2, 0, 1, Q("63.5 mm")),
    Sketcher.Constraint("DistanceX", 4, 2, 4, 1, Q("2.6 mm")),
    Sketcher.Constraint("DistanceX", 64, 1, 64, 2, Q("47.5 mm")),
    Sketcher.Constraint("DistanceX", 16, 2, -1, 1, Q("8 mm")),
    Sketcher.Constraint("DistanceY", 7, 3, -1, 1, Q("27.75 mm")),
    Sketcher.Constraint("DistanceX", 12, 3, -1, 1, Q("27.75 mm")),
])
sketch2.setExpression("Constraints[237]", "Params.sketch2_diameter")
sketch2.setExpression("Constraints[238]", "Params.sketch2_diameter2")
sketch2.setExpression("Constraints[239]", "Params.sketch2_width")
sketch2.setExpression("Constraints[240]", "Params.sketch2_width2")
sketch2.setExpression("Constraints[241]", "Params.sketch2_width3")
pad2 = body.newObject("PartDesign::Pad", "Pad001")
pad2.Profile = sketch2
pad2.setExpression("Length", "Params.pad2_length")

doc.recompute()
